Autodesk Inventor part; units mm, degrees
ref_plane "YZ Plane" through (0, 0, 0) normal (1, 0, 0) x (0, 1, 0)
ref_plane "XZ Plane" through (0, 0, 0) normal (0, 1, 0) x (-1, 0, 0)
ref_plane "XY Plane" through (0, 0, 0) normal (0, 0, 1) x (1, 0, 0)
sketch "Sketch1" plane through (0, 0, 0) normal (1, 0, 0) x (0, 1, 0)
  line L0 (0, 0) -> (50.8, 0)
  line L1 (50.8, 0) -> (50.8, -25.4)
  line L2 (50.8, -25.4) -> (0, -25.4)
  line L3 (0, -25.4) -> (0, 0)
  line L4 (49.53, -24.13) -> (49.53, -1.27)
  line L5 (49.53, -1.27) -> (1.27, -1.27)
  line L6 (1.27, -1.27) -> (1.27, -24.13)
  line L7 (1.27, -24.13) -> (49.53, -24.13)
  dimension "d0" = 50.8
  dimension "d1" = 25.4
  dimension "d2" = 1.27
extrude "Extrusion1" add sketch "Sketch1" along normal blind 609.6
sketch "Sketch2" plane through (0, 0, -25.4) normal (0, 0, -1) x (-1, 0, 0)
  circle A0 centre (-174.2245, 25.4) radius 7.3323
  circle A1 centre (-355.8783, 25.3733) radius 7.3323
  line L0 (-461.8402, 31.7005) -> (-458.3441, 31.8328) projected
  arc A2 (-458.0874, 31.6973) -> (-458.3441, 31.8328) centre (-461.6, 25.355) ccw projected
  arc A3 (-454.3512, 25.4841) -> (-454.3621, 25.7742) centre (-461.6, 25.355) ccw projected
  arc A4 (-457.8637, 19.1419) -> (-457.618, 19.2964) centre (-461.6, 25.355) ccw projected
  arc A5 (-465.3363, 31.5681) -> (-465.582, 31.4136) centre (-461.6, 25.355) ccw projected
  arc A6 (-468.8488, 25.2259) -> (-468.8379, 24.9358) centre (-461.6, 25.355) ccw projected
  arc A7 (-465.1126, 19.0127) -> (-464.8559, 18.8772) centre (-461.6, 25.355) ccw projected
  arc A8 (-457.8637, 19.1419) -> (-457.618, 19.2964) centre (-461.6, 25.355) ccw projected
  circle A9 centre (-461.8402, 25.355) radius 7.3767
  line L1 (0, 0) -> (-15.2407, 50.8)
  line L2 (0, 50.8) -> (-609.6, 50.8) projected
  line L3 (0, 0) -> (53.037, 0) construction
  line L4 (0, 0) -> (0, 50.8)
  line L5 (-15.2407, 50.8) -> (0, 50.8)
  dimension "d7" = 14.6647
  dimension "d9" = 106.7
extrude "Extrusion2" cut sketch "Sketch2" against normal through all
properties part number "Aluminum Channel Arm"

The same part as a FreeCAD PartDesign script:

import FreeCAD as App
import Part
import Sketcher
from FreeCAD import Vector
Q = App.Units.Quantity

doc = App.newDocument("Part")
body = doc.addObject("PartDesign::Body", "Body")

# Sketch on YZ plane
sketch1 = body.newObject("Sketcher::SketchObject", "Sketch")
sketch1.AttachmentSupport = (doc.getObject("YZ_Plane"), [""])
sketch1.MapMode = "FlatFace"
sketch1.addGeometry([
    Part.LineSegment(Vector(51, 0, 0), Vector(0, 0, 0)),  # 0
    Part.LineSegment(Vector(0, 0, 0), Vector(0, -25, 0)),  # 1
    Part.LineSegment(Vector(0, -25, 0), Vector(51, -25, 0)),  # 2
    Part.LineSegment(Vector(51, -25, 0), Vector(51, 0, 0)),  # 3
    Part.LineSegment(Vector(50, -1, 0), Vector(50, -24, 0)),  # 4
    Part.LineSegment(Vector(50, -24, 0), Vector(1, -24, 0)),  # 5
    Part.LineSegment(Vector(1, -24, 0), Vector(1, -1, 0)),  # 6
    Part.LineSegment(Vector(1, -1, 0), Vector(50, -1, 0)),  # 7
], False)
sketch1.addConstraint([
    Sketcher.Constraint("Coincident", 0, 2, 1, 1),
    Sketcher.Constraint("Coincident", 1, 2, 2, 1),
    Sketcher.Constraint("Coincident", 2, 2, 3, 1),
    Sketcher.Constraint("Coincident", 3, 2, 0, 1),
    Sketcher.Constraint("Coincident", 4, 2, 5, 1),
    Sketcher.Constraint("Coincident", 5, 2, 6, 1),
    Sketcher.Constraint("Coincident", 6, 2, 7, 1),
    Sketcher.Constraint("Coincident", 7, 2, 4, 1),
    Sketcher.Constraint("Horizontal", 0),
    Sketcher.Constraint("Vertical", 1),
    Sketcher.Constraint("Horizontal", 2),
    Sketcher.Constraint("Vertical", 3),
    Sketcher.Constraint("Vertical", 4),
    Sketcher.Constraint("Horizontal", 5),
    Sketcher.Constraint("Vertical", 6),
    Sketcher.Constraint("Horizontal", 7),
    Sketcher.Constraint("Coincident", 0, 2, -1, 1),
    Sketcher.Constraint("DistanceX", 0, 2, 0, 1, Q("2 in")),
    Sketcher.Constraint("DistanceY", 1, 2, 1, 1, Q("1 in")),
    Sketcher.Constraint("DistanceX", -1, 1, 5, 2, Q("0.05 in")),
    Sketcher.Constraint("DistanceY", 6, 2, -1, 1, Q("0.05 in")),
    Sketcher.Constraint("DistanceX", 4, 2, 2, 2, Q("0.05 in")),
    Sketcher.Constraint("DistanceY", 2, 2, 4, 2, Q("0.05 in")),
])
pad1 = body.newObject("PartDesign::Pad", "Pad")
pad1.Profile = sketch1
pad1.Length = Q("24 in")

# Sketch on XY plane
sketch2 = body.newObject("Sketcher::SketchObject", "Sketch001")
sketch2.AttachmentSupport = (doc.getObject("XY_Plane"), [""])
sketch2.MapMode = "FlatFace"
sketch2.AttachmentOffset = App.Placement(Vector(0, 0, -1 * 25.4), App.Rotation())
sketch2.addGeometry([
    Part.Circle(Vector(174, 25, 0), Vector(0, 0, 1), 7),  # 0
    Part.Circle(Vector(356, 25, 0), Vector(0, 0, 1), 7),  # 1
    Part.Circle(Vector(462, 25, 0), Vector(0, 0, 1), 7),  # 2
    Part.LineSegment(Vector(15, 51, 0), Vector(0, 0, 0)),  # 3
    Part.LineSegment(Vector(0, 0, 0), Vector(0, 51, 0)),  # 4
    Part.LineSegment(Vector(0, 51, 0), Vector(15, 51, 0)),  # 5
], False)
sketch2.addConstraint([
    Sketcher.Constraint("Coincident", 3, 2, 4, 1),
    Sketcher.Constraint("Coincident", 4, 2, 5, 1),
    Sketcher.Constraint("Coincident", 5, 2, 3, 1),
    Sketcher.Constraint("Vertical", 4),
    Sketcher.Constraint("Horizontal", 5),
    Sketcher.Constraint("Coincident", 3, 2, -1, 1),
    Sketcher.Constraint("Equal", 0, 1),
    Sketcher.Constraint("Angle", 3, Q("-106.7 deg")),
    Sketcher.Constraint("Diameter", 0, 14.6646),
    Sketcher.Constraint("DistanceY", 4, 1, 4, 2, Q("2 in")),
    Sketcher.Constraint("DistanceY", -1, 1, 0, 3, Q("1 in")),
    Sketcher.Constraint("Diameter", 2, 14.7534),
    Sketcher.Constraint("DistanceX", 5, 2, 0, 3, Q("6.2592 in")),
    Sketcher.Constraint("DistanceX", -1, 1, 1, 3, 355.8783),
    Sketcher.Constraint("DistanceY", -1, 1, 1, 3, 25.3733),
    Sketcher.Constraint("DistanceX", -1, 1, 2, 3, 461.8402),
    Sketcher.Constraint("DistanceY", -1, 1, 2, 3, 25.355),
])
pocket1 = body.newObject("PartDesign::Pocket", "Pocket")
pocket1.Profile = sketch2
pocket1.Type = "ThroughAll"
pocket1.Reversed = True

doc.recompute()
